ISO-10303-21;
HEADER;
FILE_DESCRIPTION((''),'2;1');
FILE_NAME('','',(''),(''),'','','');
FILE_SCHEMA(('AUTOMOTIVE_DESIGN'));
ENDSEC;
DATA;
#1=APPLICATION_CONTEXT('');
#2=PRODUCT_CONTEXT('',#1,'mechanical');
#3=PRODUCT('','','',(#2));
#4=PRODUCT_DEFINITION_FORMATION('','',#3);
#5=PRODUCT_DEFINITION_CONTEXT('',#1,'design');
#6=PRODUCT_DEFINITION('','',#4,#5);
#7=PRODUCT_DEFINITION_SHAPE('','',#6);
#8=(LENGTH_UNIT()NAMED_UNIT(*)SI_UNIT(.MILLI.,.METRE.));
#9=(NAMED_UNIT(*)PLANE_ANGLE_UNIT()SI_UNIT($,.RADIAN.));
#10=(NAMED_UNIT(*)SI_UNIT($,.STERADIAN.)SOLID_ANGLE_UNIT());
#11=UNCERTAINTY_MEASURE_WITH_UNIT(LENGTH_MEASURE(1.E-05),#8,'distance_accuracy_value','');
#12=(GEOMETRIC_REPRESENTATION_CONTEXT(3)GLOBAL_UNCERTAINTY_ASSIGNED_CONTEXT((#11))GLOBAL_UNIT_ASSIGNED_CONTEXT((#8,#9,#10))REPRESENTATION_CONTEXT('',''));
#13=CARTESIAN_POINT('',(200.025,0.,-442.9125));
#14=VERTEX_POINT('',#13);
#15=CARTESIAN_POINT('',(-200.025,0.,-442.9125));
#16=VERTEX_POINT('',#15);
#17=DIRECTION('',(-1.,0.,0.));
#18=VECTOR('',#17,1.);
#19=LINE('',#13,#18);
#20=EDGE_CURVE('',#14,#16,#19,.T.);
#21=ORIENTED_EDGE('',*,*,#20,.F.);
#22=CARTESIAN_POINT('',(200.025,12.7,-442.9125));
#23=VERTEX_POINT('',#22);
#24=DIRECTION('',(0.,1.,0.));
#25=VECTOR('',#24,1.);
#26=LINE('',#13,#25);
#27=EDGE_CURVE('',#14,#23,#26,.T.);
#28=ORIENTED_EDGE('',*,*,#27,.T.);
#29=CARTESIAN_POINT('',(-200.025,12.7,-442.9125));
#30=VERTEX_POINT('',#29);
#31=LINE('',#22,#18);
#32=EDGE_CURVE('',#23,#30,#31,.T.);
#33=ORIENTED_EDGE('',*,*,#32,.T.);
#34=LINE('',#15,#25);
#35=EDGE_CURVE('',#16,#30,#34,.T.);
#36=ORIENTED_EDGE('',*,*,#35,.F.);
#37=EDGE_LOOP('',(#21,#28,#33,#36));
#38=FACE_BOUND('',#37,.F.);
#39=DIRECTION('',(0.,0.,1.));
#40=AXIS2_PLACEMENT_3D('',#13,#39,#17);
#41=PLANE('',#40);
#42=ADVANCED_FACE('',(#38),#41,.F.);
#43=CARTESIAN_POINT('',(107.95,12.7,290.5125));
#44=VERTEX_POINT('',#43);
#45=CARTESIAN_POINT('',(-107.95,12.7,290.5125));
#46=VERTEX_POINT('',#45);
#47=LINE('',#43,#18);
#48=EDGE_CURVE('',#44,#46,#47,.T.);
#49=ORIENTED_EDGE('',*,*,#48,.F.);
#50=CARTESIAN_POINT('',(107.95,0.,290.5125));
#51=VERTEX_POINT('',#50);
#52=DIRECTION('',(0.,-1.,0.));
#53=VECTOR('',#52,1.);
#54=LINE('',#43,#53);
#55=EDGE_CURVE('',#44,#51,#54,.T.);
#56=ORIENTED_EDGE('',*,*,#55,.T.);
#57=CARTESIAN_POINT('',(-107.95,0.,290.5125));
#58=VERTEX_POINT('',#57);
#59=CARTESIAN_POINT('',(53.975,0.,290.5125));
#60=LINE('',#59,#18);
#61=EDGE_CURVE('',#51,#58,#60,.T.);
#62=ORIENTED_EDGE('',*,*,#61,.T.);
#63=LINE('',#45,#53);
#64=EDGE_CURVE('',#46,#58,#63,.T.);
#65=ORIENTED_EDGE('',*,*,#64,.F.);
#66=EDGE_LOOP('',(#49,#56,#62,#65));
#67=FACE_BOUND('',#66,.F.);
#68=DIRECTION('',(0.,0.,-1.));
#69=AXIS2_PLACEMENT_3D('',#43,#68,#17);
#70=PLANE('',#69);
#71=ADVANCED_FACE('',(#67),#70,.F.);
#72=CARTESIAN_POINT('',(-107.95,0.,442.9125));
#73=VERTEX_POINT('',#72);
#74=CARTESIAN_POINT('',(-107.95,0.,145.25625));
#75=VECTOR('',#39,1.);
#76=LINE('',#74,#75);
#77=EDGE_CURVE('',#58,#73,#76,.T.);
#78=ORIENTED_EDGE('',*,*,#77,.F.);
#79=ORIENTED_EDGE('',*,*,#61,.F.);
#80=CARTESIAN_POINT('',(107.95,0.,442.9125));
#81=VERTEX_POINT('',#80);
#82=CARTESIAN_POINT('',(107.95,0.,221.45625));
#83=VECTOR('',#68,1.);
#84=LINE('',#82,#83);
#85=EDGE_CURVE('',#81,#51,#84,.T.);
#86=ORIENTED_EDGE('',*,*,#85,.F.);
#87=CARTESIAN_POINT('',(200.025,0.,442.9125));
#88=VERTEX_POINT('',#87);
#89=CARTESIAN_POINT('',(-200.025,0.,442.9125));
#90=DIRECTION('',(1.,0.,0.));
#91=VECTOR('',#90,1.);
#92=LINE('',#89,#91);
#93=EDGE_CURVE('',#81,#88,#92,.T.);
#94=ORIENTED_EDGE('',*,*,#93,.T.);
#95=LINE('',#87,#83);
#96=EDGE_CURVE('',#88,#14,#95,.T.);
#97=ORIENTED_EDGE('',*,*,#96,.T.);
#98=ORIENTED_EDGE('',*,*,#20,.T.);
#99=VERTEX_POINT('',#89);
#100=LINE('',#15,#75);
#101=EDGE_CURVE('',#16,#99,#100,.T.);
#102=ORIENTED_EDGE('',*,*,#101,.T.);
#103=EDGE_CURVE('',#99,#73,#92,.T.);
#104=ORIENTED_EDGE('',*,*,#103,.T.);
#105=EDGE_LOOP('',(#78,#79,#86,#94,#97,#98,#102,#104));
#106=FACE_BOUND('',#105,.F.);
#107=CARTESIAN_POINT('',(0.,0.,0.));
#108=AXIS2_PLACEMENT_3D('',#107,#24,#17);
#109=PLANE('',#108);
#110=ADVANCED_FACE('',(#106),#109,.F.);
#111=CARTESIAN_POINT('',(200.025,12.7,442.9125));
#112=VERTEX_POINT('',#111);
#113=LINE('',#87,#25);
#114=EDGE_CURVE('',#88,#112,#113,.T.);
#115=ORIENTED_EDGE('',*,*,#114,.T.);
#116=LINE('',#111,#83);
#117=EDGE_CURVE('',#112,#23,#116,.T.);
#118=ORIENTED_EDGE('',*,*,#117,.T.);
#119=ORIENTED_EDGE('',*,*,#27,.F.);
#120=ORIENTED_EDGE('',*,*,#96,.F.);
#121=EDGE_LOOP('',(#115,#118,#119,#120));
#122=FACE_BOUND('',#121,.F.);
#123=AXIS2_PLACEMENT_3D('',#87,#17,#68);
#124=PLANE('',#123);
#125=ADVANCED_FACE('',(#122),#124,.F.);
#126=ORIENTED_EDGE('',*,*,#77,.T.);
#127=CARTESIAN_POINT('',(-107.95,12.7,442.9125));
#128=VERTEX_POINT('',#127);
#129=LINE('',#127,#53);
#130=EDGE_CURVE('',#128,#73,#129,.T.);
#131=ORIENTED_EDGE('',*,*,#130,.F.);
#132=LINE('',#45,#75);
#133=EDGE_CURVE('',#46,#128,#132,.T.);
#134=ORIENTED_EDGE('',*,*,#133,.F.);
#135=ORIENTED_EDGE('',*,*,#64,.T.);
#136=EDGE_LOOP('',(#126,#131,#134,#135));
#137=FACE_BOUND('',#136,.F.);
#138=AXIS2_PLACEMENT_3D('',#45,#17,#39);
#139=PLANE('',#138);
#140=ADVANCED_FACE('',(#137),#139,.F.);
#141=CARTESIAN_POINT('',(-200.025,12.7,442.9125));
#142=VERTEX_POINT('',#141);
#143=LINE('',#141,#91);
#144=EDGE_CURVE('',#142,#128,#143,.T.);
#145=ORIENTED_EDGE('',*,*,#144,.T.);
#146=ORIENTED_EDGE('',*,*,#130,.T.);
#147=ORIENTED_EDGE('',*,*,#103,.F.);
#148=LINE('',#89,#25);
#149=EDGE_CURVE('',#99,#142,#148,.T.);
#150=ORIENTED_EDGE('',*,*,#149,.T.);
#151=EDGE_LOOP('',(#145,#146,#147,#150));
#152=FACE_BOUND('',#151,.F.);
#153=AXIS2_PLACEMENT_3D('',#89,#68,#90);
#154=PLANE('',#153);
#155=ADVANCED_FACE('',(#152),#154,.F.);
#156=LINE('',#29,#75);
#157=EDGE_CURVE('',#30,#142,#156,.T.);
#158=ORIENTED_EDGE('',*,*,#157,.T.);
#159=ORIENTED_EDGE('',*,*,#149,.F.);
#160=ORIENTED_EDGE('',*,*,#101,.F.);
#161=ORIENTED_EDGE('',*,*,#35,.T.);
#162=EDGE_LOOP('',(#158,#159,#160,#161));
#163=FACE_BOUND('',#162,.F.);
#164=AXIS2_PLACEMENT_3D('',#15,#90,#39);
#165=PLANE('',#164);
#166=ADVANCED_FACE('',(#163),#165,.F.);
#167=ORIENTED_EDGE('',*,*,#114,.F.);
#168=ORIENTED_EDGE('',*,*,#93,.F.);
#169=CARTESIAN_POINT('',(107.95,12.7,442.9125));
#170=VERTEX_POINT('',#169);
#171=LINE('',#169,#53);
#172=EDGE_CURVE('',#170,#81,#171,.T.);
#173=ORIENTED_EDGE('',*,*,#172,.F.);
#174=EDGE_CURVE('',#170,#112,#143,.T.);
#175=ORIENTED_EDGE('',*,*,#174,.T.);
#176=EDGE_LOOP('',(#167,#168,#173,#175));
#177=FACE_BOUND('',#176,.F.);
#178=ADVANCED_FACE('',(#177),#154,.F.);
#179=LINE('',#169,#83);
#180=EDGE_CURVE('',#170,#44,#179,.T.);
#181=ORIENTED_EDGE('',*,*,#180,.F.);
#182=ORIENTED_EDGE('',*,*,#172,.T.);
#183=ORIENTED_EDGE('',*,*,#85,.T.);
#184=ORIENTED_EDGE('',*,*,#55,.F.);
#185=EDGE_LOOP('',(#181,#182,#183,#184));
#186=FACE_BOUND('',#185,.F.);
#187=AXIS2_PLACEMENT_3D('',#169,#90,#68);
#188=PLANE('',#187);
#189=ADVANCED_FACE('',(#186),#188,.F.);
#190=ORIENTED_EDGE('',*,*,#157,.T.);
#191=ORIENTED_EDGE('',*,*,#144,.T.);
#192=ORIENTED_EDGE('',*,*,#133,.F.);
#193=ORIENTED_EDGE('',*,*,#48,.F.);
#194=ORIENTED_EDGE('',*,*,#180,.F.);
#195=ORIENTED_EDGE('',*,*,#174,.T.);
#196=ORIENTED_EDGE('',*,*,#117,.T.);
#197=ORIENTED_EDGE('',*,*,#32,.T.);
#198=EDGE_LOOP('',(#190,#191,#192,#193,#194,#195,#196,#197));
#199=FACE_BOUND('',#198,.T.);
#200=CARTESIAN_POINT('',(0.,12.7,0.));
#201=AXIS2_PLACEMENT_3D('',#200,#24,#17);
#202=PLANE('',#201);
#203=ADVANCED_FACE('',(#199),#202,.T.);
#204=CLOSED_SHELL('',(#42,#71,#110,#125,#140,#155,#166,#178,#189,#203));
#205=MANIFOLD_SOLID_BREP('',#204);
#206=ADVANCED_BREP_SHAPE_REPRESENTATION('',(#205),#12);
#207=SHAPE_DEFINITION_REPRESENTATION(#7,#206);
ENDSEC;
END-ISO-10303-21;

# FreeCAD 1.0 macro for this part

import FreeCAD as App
import Part
import Sketcher

V = App.Vector
Q = App.Units.Quantity

doc = App.newDocument("Part")
params = doc.addObject("Spreadsheet::Sheet", "Params")
for row, (alias, value) in enumerate([
    ("sketch1_width", "15.75 in"),
    ("sketch1_height", "34.875 in"),
    ("pad1_length", "0.5 in"),
    ("sketch2_height", "6 in"),
], start=1):
    params.set(f"A{row}", alias)
    params.set(f"B{row}", "=" + value)
    params.setAlias(f"B{row}", alias)

body = doc.addObject("PartDesign::Body", "Body")

sketch1 = body.newObject("Sketcher::SketchObject", "Sketch")
sketch1.AttachmentSupport = (doc.getObject("XZ_Plane"), [""])
sketch1.MapMode = "FlatFace"
sketch1.addGeometry([
    Part.LineSegment(V(-200.025, -442.9125, 0), V(-200.025, 442.9125, 0)),
    Part.LineSegment(V(-200.025, 442.9125, 0), V(200.025, 442.9125, 0)),
    Part.LineSegment(V(200.025, 442.9125, 0), V(200.025, -442.9125, 0)),
    Part.LineSegment(V(200.025, -442.9125, 0), V(-200.025, -442.9125, 0)),
], False)
sketch1.addConstraint([
    Sketcher.Constraint("Coincident", 0, 2, 1, 1),
    Sketcher.Constraint("Coincident", 1, 2, 2, 1),
    Sketcher.Constraint("Coincident", 2, 2, 3, 1),
    Sketcher.Constraint("Coincident", 3, 2, 0, 1),
    Sketcher.Constraint("Vertical", 0),
    Sketcher.Constraint("Horizontal", 1),
    Sketcher.Constraint("Vertical", 2),
    Sketcher.Constraint("Horizontal", 3),
    Sketcher.Constraint("Symmetric", 0, 2, 2, 2, -1, 1),
    Sketcher.Constraint("DistanceX", 1, 1, 1, 2, Q("15.75 in")),
    Sketcher.Constraint("DistanceY", 0, 1, 0, 2, Q("34.875 in")),
])
sketch1.setExpression("Constraints[9]", "Params.sketch1_width")
sketch1.setExpression("Constraints[10]", "Params.sketch1_height")
pad1 = body.newObject("PartDesign::Pad", "Pad")
pad1.Profile = sketch1
pad1.setExpression("Length", "Params.pad1_length")
pad1.Reversed = True

sketch2 = body.newObject("Sketcher::SketchObject", "Sketch001")
sketch2.AttachmentSupport = (doc.getObject("XZ_Plane"), [""])
sketch2.MapMode = "FlatFace"
sketch2.AttachmentOffset = App.Placement(V(0, 0, -0.5 * 25.4), App.Rotation())
sketch2.addGeometry([
    Part.LineSegment(V(-107.95, 290.5125, 0), V(-107.95, 442.9125, 0)),
    Part.LineSegment(V(-107.95, 442.9125, 0), V(107.95, 442.9125, 0)),
    Part.LineSegment(V(107.95, 442.9125, 0), V(107.95, 290.5125, 0)),
    Part.LineSegment(V(107.95, 290.5125, 0), V(-107.95, 290.5125, 0)),
], False)
sketch2.addConstraint([
    Sketcher.Constraint("Coincident", 0, 2, 1, 1),
    Sketcher.Constraint("Coincident", 1, 2, 2, 1),
    Sketcher.Constraint("Coincident", 2, 2, 3, 1),
    Sketcher.Constraint("Coincident", 3, 2, 0, 1),
    Sketcher.Constraint("Vertical", 0),
    Sketcher.Constraint("Horizontal", 1),
    Sketcher.Constraint("Vertical", 2),
    Sketcher.Constraint("Horizontal", 3),
    Sketcher.Constraint("DistanceY", 0, 1, 0, 2, Q("6 in")),
    Sketcher.Constraint("DistanceX", 0, 2, -1, 1, Q("4.25 in")),
    Sketcher.Constraint("DistanceX", -1, 1, 1, 2, Q("4.25 in")),
    Sketcher.Constraint("DistanceY", -1, 1, 0, 2, Q("17.4375 in")),
])
sketch2.setExpression("Constraints[8]", "Params.sketch2_height")
pocket1 = body.newObject("PartDesign::Pocket", "Pocket")
pocket1.Profile = sketch2
pocket1.Type = "ThroughAll"
pocket1.Reversed = True

doc.recompute()
